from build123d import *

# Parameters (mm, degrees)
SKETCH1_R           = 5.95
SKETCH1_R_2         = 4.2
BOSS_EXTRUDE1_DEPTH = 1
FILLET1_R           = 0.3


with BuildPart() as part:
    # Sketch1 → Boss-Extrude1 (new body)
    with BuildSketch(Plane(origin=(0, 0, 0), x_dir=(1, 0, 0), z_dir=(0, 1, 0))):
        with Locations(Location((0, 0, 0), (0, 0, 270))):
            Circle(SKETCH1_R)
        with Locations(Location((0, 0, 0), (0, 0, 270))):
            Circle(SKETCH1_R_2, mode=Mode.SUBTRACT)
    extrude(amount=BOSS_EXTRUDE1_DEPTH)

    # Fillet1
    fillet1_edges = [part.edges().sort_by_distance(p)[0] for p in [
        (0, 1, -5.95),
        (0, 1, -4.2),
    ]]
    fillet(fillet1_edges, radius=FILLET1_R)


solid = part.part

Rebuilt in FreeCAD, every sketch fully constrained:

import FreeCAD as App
import Part
import Sketcher
from FreeCAD import Vector
Q = App.Units.Quantity


def edges_at(feature, points):
    """Names of the edges that pass closest to the given points."""
    edges = feature.Shape.Edges
    near = lambda p: min(range(len(edges)), key=lambda i: edges[i].distToShape(Part.Vertex(*p))[0])
    return sorted({f"Edge{near(p) + 1}" for p in points})

doc = App.newDocument("Part")
body = doc.addObject("PartDesign::Body", "Body")

# Sketch on XZ plane
sketch1 = body.newObject("Sketcher::SketchObject", "Sketch")
sketch1.AttachmentSupport = (doc.getObject("XZ_Plane"), [""])
sketch1.MapMode = "FlatFace"
sketch1.addGeometry([
    Part.Circle(Vector(0, 0, 0), Vector(0, 0, 1), 6),
    Part.Circle(Vector(0, 0, 0), Vector(0, 0, 1), 4.2),
], False)
sketch1.addConstraint([
    Sketcher.Constraint("Coincident", 0, 3, -1, 1),
    Sketcher.Constraint("Coincident", 1, 3, -1, 1),
    Sketcher.Constraint("Diameter", 0, Q("11.9 mm")),
    Sketcher.Constraint("Diameter", 1, Q("8.4 mm")),
])
pad1 = body.newObject("PartDesign::Pad", "Pad")
pad1.Profile = sketch1
pad1.Length = 1
pad1.Reversed = True
doc.recompute()

fillet = body.newObject("PartDesign::Fillet", "Fillet")
fillet.Base = (pad1, edges_at(pad1, [(0, 1, -5.95), (0, 1, -4.2)]))
fillet.Radius = 0.3

doc.recompute()
